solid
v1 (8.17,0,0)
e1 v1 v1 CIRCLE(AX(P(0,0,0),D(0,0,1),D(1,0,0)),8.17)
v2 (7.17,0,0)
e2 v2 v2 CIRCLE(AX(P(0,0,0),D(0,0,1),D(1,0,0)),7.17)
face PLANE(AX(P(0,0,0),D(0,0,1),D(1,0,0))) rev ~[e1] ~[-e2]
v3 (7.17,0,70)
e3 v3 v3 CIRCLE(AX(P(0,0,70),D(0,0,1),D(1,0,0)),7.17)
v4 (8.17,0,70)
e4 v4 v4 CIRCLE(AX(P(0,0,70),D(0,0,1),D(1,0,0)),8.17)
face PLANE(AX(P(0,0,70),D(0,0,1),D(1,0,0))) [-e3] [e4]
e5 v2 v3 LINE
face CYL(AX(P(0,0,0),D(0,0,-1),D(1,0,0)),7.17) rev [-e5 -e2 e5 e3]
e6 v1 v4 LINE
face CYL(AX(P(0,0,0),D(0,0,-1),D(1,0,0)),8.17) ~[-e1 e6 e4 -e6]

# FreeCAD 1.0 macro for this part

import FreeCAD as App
import Part
import Sketcher

V = App.Vector
Q = App.Units.Quantity

doc = App.newDocument("Part")
params = doc.addObject("Spreadsheet::Sheet", "Params")
for row, (alias, value) in enumerate([
    ("sketch1_diameter", "16.34 mm"),
    ("sketch1_diameter2", "14.34 mm"),
    ("pad1_length", "70 mm"),
], start=1):
    params.set(f"A{row}", alias)
    params.set(f"B{row}", "=" + value)
    params.setAlias(f"B{row}", alias)

body = doc.addObject("PartDesign::Body", "Body")

# Sketch on XY plane
sketch1 = body.newObject("Sketcher::SketchObject", "Sketch")
sketch1.AttachmentSupport = (doc.getObject("XY_Plane"), [""])
sketch1.MapMode = "FlatFace"
sketch1.addGeometry([
    Part.Circle(V(0, 0, 0), V(0, 0, 1), 8),
    Part.Circle(V(0, 0, 0), V(0, 0, 1), 7),
], False)
sketch1.addConstraint([
    Sketcher.Constraint("Coincident", 0, 3, -1, 1),
    Sketcher.Constraint("Coincident", 1, 3, -1, 1),
    Sketcher.Constraint("Diameter", 0, Q("16.34 mm")),
    Sketcher.Constraint("Diameter", 1, Q("14.34 mm")),
])
sketch1.setExpression("Constraints[2]", "Params.sketch1_diameter")
sketch1.setExpression("Constraints[3]", "Params.sketch1_diameter2")
pad1 = body.newObject("PartDesign::Pad", "Pad")
pad1.Profile = sketch1
pad1.setExpression("Length", "Params.pad1_length")

doc.recompute()
